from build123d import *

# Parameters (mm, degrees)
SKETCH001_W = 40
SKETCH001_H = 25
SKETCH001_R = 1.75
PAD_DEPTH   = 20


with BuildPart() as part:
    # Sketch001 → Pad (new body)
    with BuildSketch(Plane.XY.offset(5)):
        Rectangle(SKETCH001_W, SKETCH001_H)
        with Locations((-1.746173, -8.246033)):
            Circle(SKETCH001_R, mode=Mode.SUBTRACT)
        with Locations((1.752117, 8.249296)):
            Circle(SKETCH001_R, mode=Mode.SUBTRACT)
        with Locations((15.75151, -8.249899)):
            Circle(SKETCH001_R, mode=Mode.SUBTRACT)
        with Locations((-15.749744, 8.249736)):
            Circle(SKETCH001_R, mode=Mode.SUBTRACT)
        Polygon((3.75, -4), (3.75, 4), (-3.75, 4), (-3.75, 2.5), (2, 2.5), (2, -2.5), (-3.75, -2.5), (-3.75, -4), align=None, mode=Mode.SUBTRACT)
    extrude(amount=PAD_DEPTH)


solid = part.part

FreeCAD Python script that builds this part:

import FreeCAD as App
import Part
import Sketcher

V = App.Vector
Q = App.Units.Quantity

doc = App.newDocument("Part")
body = doc.addObject("PartDesign::Body", "Body")

# Sketch on XY plane
sketch1 = body.newObject("Sketcher::SketchObject", "Sketch")
sketch1.AttachmentSupport = (doc.getObject("XY_Plane"), [""])
sketch1.MapMode = "FlatFace"
sketch1.AttachmentOffset = App.Placement(V(0, 0, 5), App.Rotation())
sketch1.addGeometry([
    Part.LineSegment(V(-20, 12.5, 0), V(-20, -12.5, 0)),  # 0
    Part.LineSegment(V(-20, -12.5, 0), V(20, -12.5, 0)),  # 1
    Part.LineSegment(V(20, -12.5, 0), V(20, 12.5, 0)),  # 2
    Part.LineSegment(V(20, 12.5, 0), V(-20, 12.5, 0)),  # 3
    Part.Circle(V(-1.7, -8.2, 0), V(0, 0, 1), 1.8),  # 4
    Part.Circle(V(15.8, -8.2, 0), V(0, 0, 1), 1.8),  # 5
    Part.LineSegment(V(3.8, 4, 0), V(3.8, -4, 0)),  # 6
    Part.LineSegment(V(3.8, -4, 0), V(-3.8, -4, 0)),  # 7
    Part.LineSegment(V(-3.8, -4, 0), V(-3.8, -2.5, 0)),  # 8
    Part.LineSegment(V(-3.8, -2.5, 0), V(2, -2.5, 0)),  # 9
    Part.LineSegment(V(2, -2.5, 0), V(2, 2.5, 0)),  # 10
    Part.LineSegment(V(2, 2.5, 0), V(-3.8, 2.5, 0)),  # 11
    Part.LineSegment(V(-3.8, 2.5, 0), V(-3.8, 4, 0)),  # 12
    Part.LineSegment(V(-3.8, 4, 0), V(3.8, 4, 0)),  # 13
    Part.Circle(V(-15.7, 8.2, 0), V(0, 0, 1), 1.8),  # 14
    Part.Circle(V(1.8, 8.2, 0), V(0, 0, 1), 1.8),  # 15
], False)
sketch1.addConstraint([
    Sketcher.Constraint("Coincident", 0, 2, 1, 1),
    Sketcher.Constraint("Coincident", 1, 2, 2, 1),
    Sketcher.Constraint("Coincident", 2, 2, 3, 1),
    Sketcher.Constraint("Coincident", 3, 2, 0, 1),
    Sketcher.Constraint("Coincident", 6, 2, 7, 1),
    Sketcher.Constraint("Coincident", 7, 2, 8, 1),
    Sketcher.Constraint("Coincident", 8, 2, 9, 1),
    Sketcher.Constraint("Coincident", 9, 2, 10, 1),
    Sketcher.Constraint("Coincident", 10, 2, 11, 1),
    Sketcher.Constraint("Coincident", 11, 2, 12, 1),
    Sketcher.Constraint("Coincident", 12, 2, 13, 1),
    Sketcher.Constraint("Coincident", 13, 2, 6, 1),
    Sketcher.Constraint("Vertical", 0),
    Sketcher.Constraint("Horizontal", 1),
    Sketcher.Constraint("Vertical", 2),
    Sketcher.Constraint("Horizontal", 3),
    Sketcher.Constraint("Vertical", 6),
    Sketcher.Constraint("Horizontal", 7),
    Sketcher.Constraint("Vertical", 8),
    Sketcher.Constraint("Horizontal", 9),
    Sketcher.Constraint("Vertical", 10),
    Sketcher.Constraint("Horizontal", 11),
    Sketcher.Constraint("Vertical", 12),
    Sketcher.Constraint("Horizontal", 13),
    Sketcher.Constraint("Equal", 4, 5),
    Sketcher.Constraint("Equal", 5, 14),
    Sketcher.Constraint("Equal", 14, 15),
    Sketcher.Constraint("Symmetric", 0, 2, 2, 2, -1, 1),
    Sketcher.Constraint("Symmetric", 6, 2, 12, 2, -1, 1),
    Sketcher.Constraint("Symmetric", 8, 2, 11, 2, -1),
    Sketcher.Constraint("Diameter", 4, Q("3.5 mm")),
    Sketcher.Constraint("DistanceX", 1, 1, 1, 2, Q("40 mm")),
    Sketcher.Constraint("DistanceY", 0, 2, 0, 1, Q("25 mm")),
    Sketcher.Constraint("DistanceY", 6, 2, 6, 1, Q("8 mm")),
    Sketcher.Constraint("DistanceY", 10, 1, 10, 2, Q("5 mm")),
    Sketcher.Constraint("DistanceX", 7, 2, 7, 1, Q("7.5 mm")),
    Sketcher.Constraint("DistanceX", -1, 1, 9, 2, Q("2 mm")),
    Sketcher.Constraint("DistanceY", 5, 3, -1, 1, Q("8.249899 mm")),
    Sketcher.Constraint("DistanceX", -1, 1, 5, 3, Q("15.75151 mm")),
    Sketcher.Constraint("DistanceX", 14, 3, 4, 3, Q("14.003571 mm")),
    Sketcher.Constraint("DistanceY", 4, 3, 14, 3, Q("16.495769 mm")),
    Sketcher.Constraint("DistanceX", 4, 3, 15, 3, Q("3.49829 mm")),
    Sketcher.Constraint("DistanceY", 4, 3, 15, 3, Q("16.495329 mm")),
    Sketcher.Constraint("DistanceX", 4, 3, -1, 1, Q("1.746173 mm")),
    Sketcher.Constraint("DistanceY", 4, 3, -1, 1, Q("8.246033 mm")),
])
pad1 = body.newObject("PartDesign::Pad", "Pad")
pad1.Profile = sketch1
pad1.Length = 20

doc.recompute()
